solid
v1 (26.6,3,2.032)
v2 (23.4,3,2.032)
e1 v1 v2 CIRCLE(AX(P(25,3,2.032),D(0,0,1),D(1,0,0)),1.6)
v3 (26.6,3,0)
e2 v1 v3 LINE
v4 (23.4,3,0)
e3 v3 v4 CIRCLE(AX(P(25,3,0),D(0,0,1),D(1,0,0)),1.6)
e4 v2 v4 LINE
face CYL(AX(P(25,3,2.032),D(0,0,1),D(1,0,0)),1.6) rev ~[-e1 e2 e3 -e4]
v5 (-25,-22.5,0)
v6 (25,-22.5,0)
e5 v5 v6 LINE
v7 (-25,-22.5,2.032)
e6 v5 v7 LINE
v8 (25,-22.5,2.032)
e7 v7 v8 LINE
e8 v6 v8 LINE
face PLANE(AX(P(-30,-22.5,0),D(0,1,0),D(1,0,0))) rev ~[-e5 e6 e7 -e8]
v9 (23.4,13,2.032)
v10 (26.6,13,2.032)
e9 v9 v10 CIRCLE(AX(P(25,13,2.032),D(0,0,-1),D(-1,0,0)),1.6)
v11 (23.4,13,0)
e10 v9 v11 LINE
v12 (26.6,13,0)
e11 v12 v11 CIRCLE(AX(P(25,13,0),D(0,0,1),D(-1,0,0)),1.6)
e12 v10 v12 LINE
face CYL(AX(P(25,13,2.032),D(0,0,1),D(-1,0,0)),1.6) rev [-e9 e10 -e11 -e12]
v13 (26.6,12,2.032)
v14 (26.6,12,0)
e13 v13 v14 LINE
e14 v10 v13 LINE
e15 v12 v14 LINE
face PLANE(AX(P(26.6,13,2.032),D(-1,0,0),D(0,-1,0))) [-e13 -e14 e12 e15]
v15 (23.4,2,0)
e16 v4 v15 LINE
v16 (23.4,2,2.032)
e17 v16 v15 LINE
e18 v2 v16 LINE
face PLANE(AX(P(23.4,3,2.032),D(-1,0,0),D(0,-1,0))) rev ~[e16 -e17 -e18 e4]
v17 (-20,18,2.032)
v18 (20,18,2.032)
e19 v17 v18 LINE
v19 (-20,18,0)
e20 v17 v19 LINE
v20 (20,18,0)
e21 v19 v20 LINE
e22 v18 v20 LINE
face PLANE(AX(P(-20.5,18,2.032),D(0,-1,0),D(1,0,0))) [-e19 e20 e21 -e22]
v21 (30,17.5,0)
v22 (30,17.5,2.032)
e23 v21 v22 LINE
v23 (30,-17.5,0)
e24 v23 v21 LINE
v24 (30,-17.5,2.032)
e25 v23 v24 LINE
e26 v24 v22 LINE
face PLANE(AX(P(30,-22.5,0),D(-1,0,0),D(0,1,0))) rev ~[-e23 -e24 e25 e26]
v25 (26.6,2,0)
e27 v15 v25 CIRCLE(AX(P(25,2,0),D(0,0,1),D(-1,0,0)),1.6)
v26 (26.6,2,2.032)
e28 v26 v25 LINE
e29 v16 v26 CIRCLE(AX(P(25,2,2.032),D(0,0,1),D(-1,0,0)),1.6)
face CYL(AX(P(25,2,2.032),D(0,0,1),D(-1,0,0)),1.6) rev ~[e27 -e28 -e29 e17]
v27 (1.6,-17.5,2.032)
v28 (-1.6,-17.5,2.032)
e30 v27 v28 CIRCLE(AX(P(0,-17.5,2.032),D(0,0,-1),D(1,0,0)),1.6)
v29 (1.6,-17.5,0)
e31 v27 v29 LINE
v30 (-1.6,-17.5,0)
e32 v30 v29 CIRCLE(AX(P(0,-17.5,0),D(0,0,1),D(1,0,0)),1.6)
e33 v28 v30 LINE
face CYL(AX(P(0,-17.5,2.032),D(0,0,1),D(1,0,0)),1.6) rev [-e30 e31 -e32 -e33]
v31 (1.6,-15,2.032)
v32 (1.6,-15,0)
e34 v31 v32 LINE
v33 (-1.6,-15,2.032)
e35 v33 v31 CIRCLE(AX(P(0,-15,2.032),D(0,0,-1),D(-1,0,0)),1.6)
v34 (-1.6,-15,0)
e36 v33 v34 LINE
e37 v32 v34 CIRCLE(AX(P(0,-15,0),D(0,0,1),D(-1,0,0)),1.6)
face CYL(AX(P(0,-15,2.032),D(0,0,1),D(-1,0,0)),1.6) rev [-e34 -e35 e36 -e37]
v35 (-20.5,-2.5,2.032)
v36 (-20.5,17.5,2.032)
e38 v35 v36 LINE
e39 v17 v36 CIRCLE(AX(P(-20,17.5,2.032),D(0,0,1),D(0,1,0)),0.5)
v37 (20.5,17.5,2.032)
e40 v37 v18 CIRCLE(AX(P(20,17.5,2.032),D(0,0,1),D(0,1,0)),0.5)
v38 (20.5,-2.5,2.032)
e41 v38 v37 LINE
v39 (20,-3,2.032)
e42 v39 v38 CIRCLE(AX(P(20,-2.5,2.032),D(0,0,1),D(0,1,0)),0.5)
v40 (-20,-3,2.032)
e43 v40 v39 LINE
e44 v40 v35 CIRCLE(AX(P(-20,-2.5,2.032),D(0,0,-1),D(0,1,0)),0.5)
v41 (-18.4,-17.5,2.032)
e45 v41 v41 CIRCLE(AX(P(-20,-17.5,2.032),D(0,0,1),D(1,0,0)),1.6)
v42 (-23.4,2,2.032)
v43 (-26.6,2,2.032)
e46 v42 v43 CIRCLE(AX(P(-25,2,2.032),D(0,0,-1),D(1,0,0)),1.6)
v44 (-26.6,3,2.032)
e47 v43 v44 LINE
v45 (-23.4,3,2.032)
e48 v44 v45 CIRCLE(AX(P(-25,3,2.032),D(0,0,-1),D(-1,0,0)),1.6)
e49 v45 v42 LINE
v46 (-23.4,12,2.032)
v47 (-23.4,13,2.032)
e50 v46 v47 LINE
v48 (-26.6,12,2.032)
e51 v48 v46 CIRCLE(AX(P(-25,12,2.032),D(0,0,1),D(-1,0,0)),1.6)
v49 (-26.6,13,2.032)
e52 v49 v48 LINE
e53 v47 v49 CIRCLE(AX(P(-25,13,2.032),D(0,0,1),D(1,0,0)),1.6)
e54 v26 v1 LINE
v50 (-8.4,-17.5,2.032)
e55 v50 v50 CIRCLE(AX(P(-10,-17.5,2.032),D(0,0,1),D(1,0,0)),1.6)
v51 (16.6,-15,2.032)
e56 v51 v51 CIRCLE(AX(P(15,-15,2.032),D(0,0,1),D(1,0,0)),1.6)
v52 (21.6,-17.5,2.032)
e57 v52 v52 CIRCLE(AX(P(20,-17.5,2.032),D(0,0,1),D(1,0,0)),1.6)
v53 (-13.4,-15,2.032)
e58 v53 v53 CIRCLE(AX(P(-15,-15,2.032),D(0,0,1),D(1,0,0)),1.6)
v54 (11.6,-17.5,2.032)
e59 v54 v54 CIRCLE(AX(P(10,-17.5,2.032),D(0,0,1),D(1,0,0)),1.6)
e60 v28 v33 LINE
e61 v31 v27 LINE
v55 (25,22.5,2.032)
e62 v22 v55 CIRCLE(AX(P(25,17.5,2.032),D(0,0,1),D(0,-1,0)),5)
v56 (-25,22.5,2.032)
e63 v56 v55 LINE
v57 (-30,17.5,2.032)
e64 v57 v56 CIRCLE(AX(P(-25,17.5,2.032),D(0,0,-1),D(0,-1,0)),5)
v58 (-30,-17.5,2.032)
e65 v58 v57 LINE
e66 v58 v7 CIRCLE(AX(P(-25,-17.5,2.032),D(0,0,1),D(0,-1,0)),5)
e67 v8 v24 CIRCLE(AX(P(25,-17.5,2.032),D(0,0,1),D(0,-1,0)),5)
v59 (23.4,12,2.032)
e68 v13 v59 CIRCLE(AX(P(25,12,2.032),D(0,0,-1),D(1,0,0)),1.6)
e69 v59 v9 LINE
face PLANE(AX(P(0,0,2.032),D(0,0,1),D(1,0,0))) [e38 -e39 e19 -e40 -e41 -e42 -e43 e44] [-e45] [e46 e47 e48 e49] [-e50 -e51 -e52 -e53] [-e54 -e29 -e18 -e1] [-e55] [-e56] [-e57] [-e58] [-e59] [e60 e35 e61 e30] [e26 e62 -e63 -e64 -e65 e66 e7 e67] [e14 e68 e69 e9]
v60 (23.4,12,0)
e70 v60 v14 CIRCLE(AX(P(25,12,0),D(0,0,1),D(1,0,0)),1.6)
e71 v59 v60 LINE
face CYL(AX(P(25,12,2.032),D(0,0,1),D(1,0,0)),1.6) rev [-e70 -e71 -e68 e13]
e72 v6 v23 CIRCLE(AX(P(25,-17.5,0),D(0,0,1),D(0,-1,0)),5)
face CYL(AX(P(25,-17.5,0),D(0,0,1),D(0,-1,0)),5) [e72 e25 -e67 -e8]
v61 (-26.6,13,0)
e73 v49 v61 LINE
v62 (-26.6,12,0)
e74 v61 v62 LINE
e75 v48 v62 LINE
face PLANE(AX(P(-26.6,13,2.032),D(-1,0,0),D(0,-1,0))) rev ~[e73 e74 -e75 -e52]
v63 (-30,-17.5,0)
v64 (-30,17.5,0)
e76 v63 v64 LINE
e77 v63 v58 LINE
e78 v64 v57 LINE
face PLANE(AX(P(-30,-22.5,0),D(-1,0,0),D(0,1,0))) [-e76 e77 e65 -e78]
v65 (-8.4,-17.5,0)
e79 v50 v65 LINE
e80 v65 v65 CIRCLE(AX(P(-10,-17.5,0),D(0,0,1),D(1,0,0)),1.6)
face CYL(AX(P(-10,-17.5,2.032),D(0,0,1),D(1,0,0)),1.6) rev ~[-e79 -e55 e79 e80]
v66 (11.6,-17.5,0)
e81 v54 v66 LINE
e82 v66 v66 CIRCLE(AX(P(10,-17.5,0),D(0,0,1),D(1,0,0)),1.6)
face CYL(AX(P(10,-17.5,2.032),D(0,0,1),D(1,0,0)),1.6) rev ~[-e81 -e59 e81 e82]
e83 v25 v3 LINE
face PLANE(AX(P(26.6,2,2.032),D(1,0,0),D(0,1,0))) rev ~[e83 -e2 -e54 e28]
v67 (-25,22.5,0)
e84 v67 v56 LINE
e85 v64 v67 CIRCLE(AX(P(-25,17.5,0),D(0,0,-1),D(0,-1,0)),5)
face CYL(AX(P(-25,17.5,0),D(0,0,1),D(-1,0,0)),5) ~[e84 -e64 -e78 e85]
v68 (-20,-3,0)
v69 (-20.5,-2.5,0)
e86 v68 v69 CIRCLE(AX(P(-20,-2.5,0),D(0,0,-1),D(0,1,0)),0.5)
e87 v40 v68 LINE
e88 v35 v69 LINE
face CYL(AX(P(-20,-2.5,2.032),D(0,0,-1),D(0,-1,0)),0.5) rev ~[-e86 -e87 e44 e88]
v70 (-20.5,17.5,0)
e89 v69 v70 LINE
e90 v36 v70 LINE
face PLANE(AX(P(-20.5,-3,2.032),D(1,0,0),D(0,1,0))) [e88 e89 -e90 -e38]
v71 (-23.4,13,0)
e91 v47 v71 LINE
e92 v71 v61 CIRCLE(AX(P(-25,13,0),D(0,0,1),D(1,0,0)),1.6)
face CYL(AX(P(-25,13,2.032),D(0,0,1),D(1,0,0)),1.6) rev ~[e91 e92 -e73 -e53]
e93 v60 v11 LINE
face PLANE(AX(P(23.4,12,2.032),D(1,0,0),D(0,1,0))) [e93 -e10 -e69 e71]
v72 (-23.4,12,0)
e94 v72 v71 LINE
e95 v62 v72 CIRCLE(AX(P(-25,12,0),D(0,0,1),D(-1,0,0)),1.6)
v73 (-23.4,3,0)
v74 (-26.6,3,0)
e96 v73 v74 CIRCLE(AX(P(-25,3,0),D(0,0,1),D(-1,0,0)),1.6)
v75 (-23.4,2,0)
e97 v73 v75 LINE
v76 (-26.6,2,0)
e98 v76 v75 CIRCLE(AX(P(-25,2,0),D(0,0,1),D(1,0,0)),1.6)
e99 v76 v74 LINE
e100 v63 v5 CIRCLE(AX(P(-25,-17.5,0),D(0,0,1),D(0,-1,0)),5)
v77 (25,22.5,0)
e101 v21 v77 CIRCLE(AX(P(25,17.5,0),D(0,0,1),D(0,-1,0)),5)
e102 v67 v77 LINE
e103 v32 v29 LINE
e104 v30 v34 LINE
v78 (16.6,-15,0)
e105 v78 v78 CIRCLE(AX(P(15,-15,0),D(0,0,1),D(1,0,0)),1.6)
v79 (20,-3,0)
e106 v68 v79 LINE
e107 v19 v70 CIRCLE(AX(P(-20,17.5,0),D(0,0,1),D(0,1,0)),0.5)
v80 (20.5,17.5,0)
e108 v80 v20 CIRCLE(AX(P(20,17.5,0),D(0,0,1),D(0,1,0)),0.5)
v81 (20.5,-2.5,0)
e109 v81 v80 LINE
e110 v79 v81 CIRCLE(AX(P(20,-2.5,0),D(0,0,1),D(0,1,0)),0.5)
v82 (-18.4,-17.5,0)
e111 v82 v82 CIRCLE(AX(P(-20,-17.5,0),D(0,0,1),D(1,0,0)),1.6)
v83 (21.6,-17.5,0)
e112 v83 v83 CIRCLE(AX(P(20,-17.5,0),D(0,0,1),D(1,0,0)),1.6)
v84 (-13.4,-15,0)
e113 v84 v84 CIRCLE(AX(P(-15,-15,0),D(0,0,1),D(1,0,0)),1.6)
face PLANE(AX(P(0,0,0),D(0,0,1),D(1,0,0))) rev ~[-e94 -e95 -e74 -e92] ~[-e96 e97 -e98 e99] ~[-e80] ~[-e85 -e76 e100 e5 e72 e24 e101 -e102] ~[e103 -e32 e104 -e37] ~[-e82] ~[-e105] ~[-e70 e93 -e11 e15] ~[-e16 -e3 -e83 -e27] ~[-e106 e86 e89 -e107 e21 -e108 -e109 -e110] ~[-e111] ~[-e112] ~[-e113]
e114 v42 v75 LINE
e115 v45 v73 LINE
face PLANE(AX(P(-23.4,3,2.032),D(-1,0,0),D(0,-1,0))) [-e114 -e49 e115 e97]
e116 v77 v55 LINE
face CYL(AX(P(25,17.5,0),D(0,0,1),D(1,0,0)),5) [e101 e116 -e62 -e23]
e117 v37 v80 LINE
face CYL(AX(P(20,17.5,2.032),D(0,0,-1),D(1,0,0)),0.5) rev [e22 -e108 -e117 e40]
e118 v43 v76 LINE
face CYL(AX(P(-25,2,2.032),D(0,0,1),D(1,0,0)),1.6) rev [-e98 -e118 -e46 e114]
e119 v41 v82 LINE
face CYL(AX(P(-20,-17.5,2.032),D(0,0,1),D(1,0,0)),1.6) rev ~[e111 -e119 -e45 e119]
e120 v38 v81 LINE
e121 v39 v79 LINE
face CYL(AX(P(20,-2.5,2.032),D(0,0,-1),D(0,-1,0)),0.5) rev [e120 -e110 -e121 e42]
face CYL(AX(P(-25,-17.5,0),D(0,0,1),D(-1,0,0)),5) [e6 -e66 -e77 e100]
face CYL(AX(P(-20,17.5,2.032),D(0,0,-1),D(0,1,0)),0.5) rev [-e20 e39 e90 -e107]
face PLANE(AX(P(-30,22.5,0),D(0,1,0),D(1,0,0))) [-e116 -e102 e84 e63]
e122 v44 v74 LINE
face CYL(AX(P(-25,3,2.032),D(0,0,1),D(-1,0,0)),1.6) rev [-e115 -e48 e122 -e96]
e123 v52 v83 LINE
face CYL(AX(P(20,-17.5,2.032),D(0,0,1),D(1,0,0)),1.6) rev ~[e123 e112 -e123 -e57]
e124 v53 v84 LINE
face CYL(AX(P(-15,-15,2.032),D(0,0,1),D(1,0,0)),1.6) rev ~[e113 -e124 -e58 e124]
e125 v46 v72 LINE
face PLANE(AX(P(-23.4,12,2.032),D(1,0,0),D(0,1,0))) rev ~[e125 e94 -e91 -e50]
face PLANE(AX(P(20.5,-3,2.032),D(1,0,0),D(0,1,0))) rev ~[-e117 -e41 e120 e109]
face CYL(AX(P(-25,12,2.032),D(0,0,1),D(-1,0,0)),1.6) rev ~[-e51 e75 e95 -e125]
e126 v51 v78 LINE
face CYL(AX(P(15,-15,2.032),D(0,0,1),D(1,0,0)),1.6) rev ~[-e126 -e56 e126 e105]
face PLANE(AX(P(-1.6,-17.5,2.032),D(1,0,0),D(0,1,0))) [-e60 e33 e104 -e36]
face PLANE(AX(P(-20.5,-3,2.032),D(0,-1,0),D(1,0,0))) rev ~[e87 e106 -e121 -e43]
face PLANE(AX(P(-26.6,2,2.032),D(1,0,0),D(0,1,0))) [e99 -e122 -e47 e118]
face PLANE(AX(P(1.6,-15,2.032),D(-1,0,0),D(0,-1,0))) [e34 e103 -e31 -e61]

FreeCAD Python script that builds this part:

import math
import FreeCAD as App
import Part
import Sketcher


def edges_at(feature, points):
    """Names of the edges that pass closest to the given points."""
    edges = feature.Shape.Edges
    near = lambda p: min(range(len(edges)), key=lambda i: edges[i].distToShape(Part.Vertex(*p))[0])
    return sorted({f"Edge{near(p) + 1}" for p in points})


def add_polygon(sketch, points):
    """Adds a closed chain of lines whose ends are joined by coincident constraints."""
    first, n = sketch.GeometryCount, len(points)
    for a, b in zip(points, points[1:] + points[:1]):
        sketch.addGeometry(Part.LineSegment(App.Vector(*a, 0), App.Vector(*b, 0)), False)
    for i in range(n):
        sketch.addConstraint(Sketcher.Constraint("Coincident", first + i, 2, first + (i + 1) % n, 1))

doc = App.newDocument("Part")
body = doc.addObject("PartDesign::Body", "Body")

# Sketch on XY plane
sketch1 = body.newObject("Sketcher::SketchObject", "Sketch")
sketch1.AttachmentSupport = (doc.getObject("XY_Plane"), [""])
sketch1.MapMode = "FlatFace"
add_polygon(sketch1, [(-30, 22.5), (-30, -22.5), (30, -22.5), (30, 22.5)])  # lines 0-3
sketch1.addConstraint(Sketcher.Constraint("Vertical", 0))
sketch1.addConstraint(Sketcher.Constraint("Horizontal", 1))
sketch1.addConstraint(Sketcher.Constraint("Vertical", 2))
sketch1.addConstraint(Sketcher.Constraint("Horizontal", 3))
sketch1.addConstraint(Sketcher.Constraint("Symmetric", 0, 2, 2, 2, -1, 1))
sketch1.addConstraint(Sketcher.Constraint("DistanceX", 1, 1, 1, 2, 60.0))
sketch1.addConstraint(Sketcher.Constraint("DistanceY", 0, 2, 0, 1, 45.0))
pad1 = body.newObject("PartDesign::Pad", "Pad")
pad1.Profile = sketch1
pad1.Length = 2.032
doc.recompute()

fillet = body.newObject("PartDesign::Fillet", "Fillet")
fillet.Base = (pad1, edges_at(pad1, [
    (30, -22.5, 1.016),
    (-30, -22.5, 1.016),
    (-30, 22.5, 1.016),
    (30, 22.5, 1.016),
]))
fillet.Radius = 5

# Sketch on XY plane
sketch2 = body.newObject("Sketcher::SketchObject", "Sketch001")
sketch2.AttachmentSupport = (doc.getObject("XY_Plane"), [""])
sketch2.MapMode = "FlatFace"
sketch2.AttachmentOffset = App.Placement(App.Vector(0, 0, 2.032), App.Rotation())
add_polygon(sketch2, [(-20.5, 18), (-20.5, -3), (20.5, -3), (20.5, 18)])  # lines 0-3
sketch2.addConstraint(Sketcher.Constraint("Vertical", 0))
sketch2.addConstraint(Sketcher.Constraint("Horizontal", 1))
sketch2.addConstraint(Sketcher.Constraint("Vertical", 2))
sketch2.addConstraint(Sketcher.Constraint("Horizontal", 3))
sketch2.addConstraint(Sketcher.Constraint("DistanceX", 1, 1, 1, 2, 41.0))
sketch2.addConstraint(Sketcher.Constraint("DistanceY", 0, 2, 0, 1, 21.0))
sketch2.addConstraint(Sketcher.Constraint("DistanceY", 0, 2, -1, 1, 3.0))
sketch2.addConstraint(Sketcher.Constraint("DistanceX", 0, 2, -1, 1, 20.5))
pocket1 = body.newObject("PartDesign::Pocket", "Pocket")
pocket1.Profile = sketch2
pocket1.Type = "ThroughAll"
doc.recompute()

fillet2 = body.newObject("PartDesign::Fillet", "Fillet001")
fillet2.Base = (pocket1, edges_at(pocket1, [
    (20.5, 18, 1.016),
    (20.5, -3, 1.016),
    (-20.5, -3, 1.016),
    (-20.5, 18, 1.016),
]))
fillet2.Radius = 0.5

# Sketch on XY plane
sketch3 = body.newObject("Sketcher::SketchObject", "Sketch002")
sketch3.AttachmentSupport = (doc.getObject("XY_Plane"), [""])
sketch3.MapMode = "FlatFace"
sketch3.AttachmentOffset = App.Placement(App.Vector(0, 0, 2.032), App.Rotation())
sketch3.addGeometry(Part.LineSegment(App.Vector(-23.4, 2, 0), App.Vector(-23.4, 3, 0)), False)
sketch3.addGeometry(Part.ArcOfCircle(Part.Circle(App.Vector(-25, 3, 0), App.Vector(0, 0, 1), 1.6), math.radians(0), math.radians(180)), False)
sketch3.addGeometry(Part.LineSegment(App.Vector(-26.6, 3, 0), App.Vector(-26.6, 2, 0)), False)
sketch3.addGeometry(Part.ArcOfCircle(Part.Circle(App.Vector(-25, 2, 0), App.Vector(0, 0, 1), 1.6), math.radians(180), math.radians(360)), False)
sketch3.addGeometry(Part.LineSegment(App.Vector(-23.4, 12, 0), App.Vector(-23.4, 13, 0)), False)
sketch3.addGeometry(Part.ArcOfCircle(Part.Circle(App.Vector(-25, 13, 0), App.Vector(0, 0, 1), 1.6), math.radians(0), math.radians(180)), False)
sketch3.addGeometry(Part.LineSegment(App.Vector(-26.6, 13, 0), App.Vector(-26.6, 12, 0)), False)
sketch3.addGeometry(Part.ArcOfCircle(Part.Circle(App.Vector(-25, 12, 0), App.Vector(0, 0, 1), 1.6), math.radians(180), math.radians(360)), False)
sketch3.addGeometry(Part.LineSegment(App.Vector(23.4, 3, 0), App.Vector(23.4, 2, 0)), False)
sketch3.addGeometry(Part.ArcOfCircle(Part.Circle(App.Vector(25, 2, 0), App.Vector(0, 0, 1), 1.6), math.radians(180), math.radians(360)), False)
sketch3.addGeometry(Part.LineSegment(App.Vector(26.6, 2, 0), App.Vector(26.6, 3, 0)), False)
sketch3.addGeometry(Part.ArcOfCircle(Part.Circle(App.Vector(25, 3, 0), App.Vector(0, 0, 1), 1.6), math.radians(0), math.radians(180)), False)
sketch3.addGeometry(Part.LineSegment(App.Vector(23.4, 13, 0), App.Vector(23.4, 12, 0)), False)
sketch3.addGeometry(Part.ArcOfCircle(Part.Circle(App.Vector(25, 12, 0), App.Vector(0, 0, 1), 1.6), math.radians(180), math.radians(360)), False)
sketch3.addGeometry(Part.LineSegment(App.Vector(26.6, 12, 0), App.Vector(26.6, 13, 0)), False)
sketch3.addGeometry(Part.ArcOfCircle(Part.Circle(App.Vector(25, 13, 0), App.Vector(0, 0, 1), 1.6), math.radians(0), math.radians(180)), False)
sketch3.addConstraint(Sketcher.Constraint("Tangent", 0, 2, 1, 1))
sketch3.addConstraint(Sketcher.Constraint("Tangent", 1, 2, 2, 1))
sketch3.addConstraint(Sketcher.Constraint("Tangent", 2, 2, 3, 1))
sketch3.addConstraint(Sketcher.Constraint("Tangent", 3, 2, 0, 1))
sketch3.addConstraint(Sketcher.Constraint("Tangent", 4, 2, 5, 1))
sketch3.addConstraint(Sketcher.Constraint("Tangent", 5, 2, 6, 1))
sketch3.addConstraint(Sketcher.Constraint("Tangent", 6, 2, 7, 1))
sketch3.addConstraint(Sketcher.Constraint("Tangent", 7, 2, 4, 1))
sketch3.addConstraint(Sketcher.Constraint("Tangent", 8, 2, 9, 1))
sketch3.addConstraint(Sketcher.Constraint("Tangent", 9, 2, 10, 1))
sketch3.addConstraint(Sketcher.Constraint("Tangent", 10, 2, 11, 1))
sketch3.addConstraint(Sketcher.Constraint("Tangent", 11, 2, 8, 1))
sketch3.addConstraint(Sketcher.Constraint("Tangent", 12, 2, 13, 1))
sketch3.addConstraint(Sketcher.Constraint("Tangent", 13, 2, 14, 1))
sketch3.addConstraint(Sketcher.Constraint("Tangent", 14, 2, 15, 1))
sketch3.addConstraint(Sketcher.Constraint("Tangent", 15, 2, 12, 1))
sketch3.addConstraint(Sketcher.Constraint("Vertical", 0))
sketch3.addConstraint(Sketcher.Constraint("Vertical", 2))
sketch3.addConstraint(Sketcher.Constraint("Vertical", 4))
sketch3.addConstraint(Sketcher.Constraint("Vertical", 6))
sketch3.addConstraint(Sketcher.Constraint("Vertical", 8))
sketch3.addConstraint(Sketcher.Constraint("Vertical", 10))
sketch3.addConstraint(Sketcher.Constraint("Vertical", 12))
sketch3.addConstraint(Sketcher.Constraint("Vertical", 14))
sketch3.addConstraint(Sketcher.Constraint("Equal", 3, 5))
sketch3.addConstraint(Sketcher.Constraint("Equal", 7, 9))
sketch3.addConstraint(Sketcher.Constraint("Equal", 11, 13))
sketch3.addConstraint(Sketcher.Constraint("Symmetric", 3, 3, 9, 3, -2))
sketch3.addConstraint(Sketcher.Constraint("Symmetric", 7, 3, 13, 3, -2))
sketch3.addConstraint(Sketcher.Constraint("Horizontal", 1, 3, 11, 3))
sketch3.addConstraint(Sketcher.Constraint("Horizontal", 5, 3, 15, 3))
sketch3.addConstraint(Sketcher.Constraint("Vertical", 3, 3, 5, 3))
sketch3.addConstraint(Sketcher.Constraint("Equal", 2, 4))
sketch3.addConstraint(Sketcher.Constraint("Radius", 1, 1.6))
sketch3.addConstraint(Sketcher.Constraint("DistanceY", 0, 1, 0, 2, 1.0))
sketch3.addConstraint(Sketcher.Constraint("DistanceX", 1, 3, -1, 1, 25.0))
sketch3.addConstraint(Sketcher.Constraint("DistanceY", -1, 1, 1, 3, 3.0))
sketch3.addConstraint(Sketcher.Constraint("DistanceY", -1, 1, 5, 3, 13.0))
pocket2 = body.newObject("PartDesign::Pocket", "Pocket001")
pocket2.Profile = sketch3
pocket2.Type = "ThroughAll"

# Sketch on XY plane
sketch4 = body.newObject("Sketcher::SketchObject", "Sketch003")
sketch4.AttachmentSupport = (doc.getObject("XY_Plane"), [""])
sketch4.MapMode = "FlatFace"
sketch4.AttachmentOffset = App.Placement(App.Vector(0, 0, 2.032), App.Rotation())
sketch4.addGeometry(Part.Circle(App.Vector(-15, -15, 0), App.Vector(0, 0, 1), 1.6), False)
sketch4.addGeometry(Part.Circle(App.Vector(15, -15, 0), App.Vector(0, 0, 1), 1.6), False)
sketch4.addGeometry(Part.Circle(App.Vector(10, -17.5, 0), App.Vector(0, 0, 1), 1.6), False)
sketch4.addGeometry(Part.Circle(App.Vector(-10, -17.5, 0), App.Vector(0, 0, 1), 1.6), False)
sketch4.addGeometry(Part.Circle(App.Vector(20, -17.5, 0), App.Vector(0, 0, 1), 1.6), False)
sketch4.addGeometry(Part.Circle(App.Vector(-20, -17.5, 0), App.Vector(0, 0, 1), 1.6), False)
sketch4.addGeometry(Part.LineSegment(App.Vector(1.6, -17.5, 0), App.Vector(1.6, -15, 0)), False)
sketch4.addGeometry(Part.ArcOfCircle(Part.Circle(App.Vector(0, -15, 0), App.Vector(0, 0, 1), 1.6), math.radians(0), math.radians(180)), False)
sketch4.addGeometry(Part.LineSegment(App.Vector(-1.6, -15, 0), App.Vector(-1.6, -17.5, 0)), False)
sketch4.addGeometry(Part.ArcOfCircle(Part.Circle(App.Vector(0, -17.5, 0), App.Vector(0, 0, 1), 1.6), math.radians(180), math.radians(360)), False)
sketch4.addConstraint(Sketcher.Constraint("Tangent", 6, 2, 7, 1))
sketch4.addConstraint(Sketcher.Constraint("Tangent", 7, 2, 8, 1))
sketch4.addConstraint(Sketcher.Constraint("Tangent", 8, 2, 9, 1))
sketch4.addConstraint(Sketcher.Constraint("Tangent", 9, 2, 6, 1))
sketch4.addConstraint(Sketcher.Constraint("Vertical", 6))
sketch4.addConstraint(Sketcher.Constraint("Vertical", 8))
sketch4.addConstraint(Sketcher.Constraint("Equal", 0, 1))
sketch4.addConstraint(Sketcher.Constraint("Equal", 1, 2))
sketch4.addConstraint(Sketcher.Constraint("Equal", 2, 3))
sketch4.addConstraint(Sketcher.Constraint("Equal", 3, 4))
sketch4.addConstraint(Sketcher.Constraint("Equal", 4, 5))
sketch4.addConstraint(Sketcher.Constraint("Equal", 5, 7))
sketch4.addConstraint(Sketcher.Constraint("Symmetric", 0, 3, 1, 3, -2))
sketch4.addConstraint(Sketcher.Constraint("Symmetric", 2, 3, 3, 3, -2))
sketch4.addConstraint(Sketcher.Constraint("Symmetric", 4, 3, 5, 3, -2))
sketch4.addConstraint(Sketcher.Constraint("PointOnObject", 7, 3, -2))
sketch4.addConstraint(Sketcher.Constraint("Horizontal", 3, 3, 4, 3))
sketch4.addConstraint(Sketcher.Constraint("Horizontal", 1, 3, 7, 3))
sketch4.addConstraint(Sketcher.Constraint("Horizontal", 5, 3, 9, 3))
sketch4.addConstraint(Sketcher.Constraint("Diameter", 0, 3.2))
sketch4.addConstraint(Sketcher.Constraint("DistanceY", 6, 1, 6, 2, 2.5))
sketch4.addConstraint(Sketcher.Constraint("DistanceX", 0, 3, -1, 1, 15.0))
sketch4.addConstraint(Sketcher.Constraint("DistanceY", 0, 3, -1, 1, 15.0))
sketch4.addConstraint(Sketcher.Constraint("DistanceX", -1, 1, 2, 3, 10.0))
sketch4.addConstraint(Sketcher.Constraint("DistanceX", -1, 1, 4, 3, 20.0))
pocket3 = body.newObject("PartDesign::Pocket", "Pocket002")
pocket3.Profile = sketch4
pocket3.Type = "ThroughAll"

doc.recompute()
